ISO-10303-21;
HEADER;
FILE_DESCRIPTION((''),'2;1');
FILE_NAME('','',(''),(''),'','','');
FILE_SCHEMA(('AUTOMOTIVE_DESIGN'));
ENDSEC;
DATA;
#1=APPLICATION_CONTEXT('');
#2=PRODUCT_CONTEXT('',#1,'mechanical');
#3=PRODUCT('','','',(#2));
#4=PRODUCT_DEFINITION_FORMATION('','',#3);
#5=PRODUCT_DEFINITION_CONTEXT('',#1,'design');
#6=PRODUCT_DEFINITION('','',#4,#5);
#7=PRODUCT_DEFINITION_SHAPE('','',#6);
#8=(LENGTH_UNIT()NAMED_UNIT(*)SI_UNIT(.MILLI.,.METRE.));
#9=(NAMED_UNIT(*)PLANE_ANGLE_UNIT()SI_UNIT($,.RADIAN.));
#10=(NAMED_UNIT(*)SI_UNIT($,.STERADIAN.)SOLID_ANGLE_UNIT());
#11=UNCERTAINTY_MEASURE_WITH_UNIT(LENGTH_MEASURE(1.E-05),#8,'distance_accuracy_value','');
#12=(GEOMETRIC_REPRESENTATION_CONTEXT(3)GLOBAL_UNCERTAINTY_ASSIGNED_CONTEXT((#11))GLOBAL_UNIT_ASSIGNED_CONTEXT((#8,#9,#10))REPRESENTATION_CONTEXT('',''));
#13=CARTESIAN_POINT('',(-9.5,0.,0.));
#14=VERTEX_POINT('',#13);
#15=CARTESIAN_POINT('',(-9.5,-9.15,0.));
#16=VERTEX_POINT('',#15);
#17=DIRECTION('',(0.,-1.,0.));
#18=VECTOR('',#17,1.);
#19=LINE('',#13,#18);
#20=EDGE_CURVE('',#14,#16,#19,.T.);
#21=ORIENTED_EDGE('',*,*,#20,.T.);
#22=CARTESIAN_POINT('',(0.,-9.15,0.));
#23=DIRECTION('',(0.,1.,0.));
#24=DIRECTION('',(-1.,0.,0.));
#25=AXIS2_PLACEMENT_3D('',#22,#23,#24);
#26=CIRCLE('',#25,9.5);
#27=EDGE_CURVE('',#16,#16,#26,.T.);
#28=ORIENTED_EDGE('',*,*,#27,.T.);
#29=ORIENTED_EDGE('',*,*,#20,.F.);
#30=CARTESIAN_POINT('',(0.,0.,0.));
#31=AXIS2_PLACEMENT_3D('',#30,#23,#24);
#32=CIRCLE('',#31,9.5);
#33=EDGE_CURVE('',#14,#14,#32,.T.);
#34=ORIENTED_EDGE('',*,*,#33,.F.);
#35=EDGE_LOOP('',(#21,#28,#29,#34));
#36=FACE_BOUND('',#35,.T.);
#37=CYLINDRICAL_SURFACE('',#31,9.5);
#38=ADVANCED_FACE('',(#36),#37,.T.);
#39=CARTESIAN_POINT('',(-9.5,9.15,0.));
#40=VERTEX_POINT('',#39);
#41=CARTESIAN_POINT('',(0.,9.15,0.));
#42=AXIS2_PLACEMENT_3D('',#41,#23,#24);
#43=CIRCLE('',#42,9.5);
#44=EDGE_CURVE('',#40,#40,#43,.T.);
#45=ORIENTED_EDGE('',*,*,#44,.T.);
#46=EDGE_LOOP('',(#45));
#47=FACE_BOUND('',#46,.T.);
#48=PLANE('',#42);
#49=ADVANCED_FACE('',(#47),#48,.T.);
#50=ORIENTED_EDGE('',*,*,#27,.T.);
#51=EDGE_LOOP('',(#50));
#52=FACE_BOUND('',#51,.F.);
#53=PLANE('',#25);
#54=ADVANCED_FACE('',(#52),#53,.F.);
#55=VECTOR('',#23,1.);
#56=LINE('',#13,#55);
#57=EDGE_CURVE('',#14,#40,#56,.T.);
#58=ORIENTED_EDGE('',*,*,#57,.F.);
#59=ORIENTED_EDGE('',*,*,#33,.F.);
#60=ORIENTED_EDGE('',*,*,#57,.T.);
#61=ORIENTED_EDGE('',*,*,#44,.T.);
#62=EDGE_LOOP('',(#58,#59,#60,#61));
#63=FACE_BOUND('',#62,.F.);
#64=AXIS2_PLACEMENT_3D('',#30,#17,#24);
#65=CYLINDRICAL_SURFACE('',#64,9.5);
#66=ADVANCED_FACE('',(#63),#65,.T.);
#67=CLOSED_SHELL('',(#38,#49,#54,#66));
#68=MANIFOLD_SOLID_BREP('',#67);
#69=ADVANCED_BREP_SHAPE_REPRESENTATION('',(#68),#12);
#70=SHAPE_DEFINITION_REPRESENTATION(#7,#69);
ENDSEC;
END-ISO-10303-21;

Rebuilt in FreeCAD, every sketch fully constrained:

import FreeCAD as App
import Part
import Sketcher

V = App.Vector

doc = App.newDocument("Part")
params = doc.addObject("Spreadsheet::Sheet", "Params")
for row, (alias, value) in enumerate([
    ("sketch1_diameter", "19 mm"),
    ("pad1_length", "18.3 mm"),
], start=1):
    params.set(f"A{row}", alias)
    params.set(f"B{row}", "=" + value)
    params.setAlias(f"B{row}", alias)

body = doc.addObject("PartDesign::Body", "Body")

# Sketch on XZ plane
sketch1 = body.newObject("Sketcher::SketchObject", "Sketch")
sketch1.AttachmentSupport = (doc.getObject("XZ_Plane"), [""])
sketch1.MapMode = "FlatFace"
sketch1.addGeometry(Part.Circle(V(0, 0, 0), V(0, 0, 1), 10), False)
sketch1.addConstraint([
    Sketcher.Constraint("Coincident", 0, 3, -1, 1),
    Sketcher.Constraint("Diameter", 0, 19.0),
])
sketch1.setExpression("Constraints[1]", "Params.sketch1_diameter")
pad1 = body.newObject("PartDesign::Pad", "Pad")
pad1.Profile = sketch1
pad1.setExpression("Length", "Params.pad1_length")
pad1.Midplane = True

doc.recompute()
